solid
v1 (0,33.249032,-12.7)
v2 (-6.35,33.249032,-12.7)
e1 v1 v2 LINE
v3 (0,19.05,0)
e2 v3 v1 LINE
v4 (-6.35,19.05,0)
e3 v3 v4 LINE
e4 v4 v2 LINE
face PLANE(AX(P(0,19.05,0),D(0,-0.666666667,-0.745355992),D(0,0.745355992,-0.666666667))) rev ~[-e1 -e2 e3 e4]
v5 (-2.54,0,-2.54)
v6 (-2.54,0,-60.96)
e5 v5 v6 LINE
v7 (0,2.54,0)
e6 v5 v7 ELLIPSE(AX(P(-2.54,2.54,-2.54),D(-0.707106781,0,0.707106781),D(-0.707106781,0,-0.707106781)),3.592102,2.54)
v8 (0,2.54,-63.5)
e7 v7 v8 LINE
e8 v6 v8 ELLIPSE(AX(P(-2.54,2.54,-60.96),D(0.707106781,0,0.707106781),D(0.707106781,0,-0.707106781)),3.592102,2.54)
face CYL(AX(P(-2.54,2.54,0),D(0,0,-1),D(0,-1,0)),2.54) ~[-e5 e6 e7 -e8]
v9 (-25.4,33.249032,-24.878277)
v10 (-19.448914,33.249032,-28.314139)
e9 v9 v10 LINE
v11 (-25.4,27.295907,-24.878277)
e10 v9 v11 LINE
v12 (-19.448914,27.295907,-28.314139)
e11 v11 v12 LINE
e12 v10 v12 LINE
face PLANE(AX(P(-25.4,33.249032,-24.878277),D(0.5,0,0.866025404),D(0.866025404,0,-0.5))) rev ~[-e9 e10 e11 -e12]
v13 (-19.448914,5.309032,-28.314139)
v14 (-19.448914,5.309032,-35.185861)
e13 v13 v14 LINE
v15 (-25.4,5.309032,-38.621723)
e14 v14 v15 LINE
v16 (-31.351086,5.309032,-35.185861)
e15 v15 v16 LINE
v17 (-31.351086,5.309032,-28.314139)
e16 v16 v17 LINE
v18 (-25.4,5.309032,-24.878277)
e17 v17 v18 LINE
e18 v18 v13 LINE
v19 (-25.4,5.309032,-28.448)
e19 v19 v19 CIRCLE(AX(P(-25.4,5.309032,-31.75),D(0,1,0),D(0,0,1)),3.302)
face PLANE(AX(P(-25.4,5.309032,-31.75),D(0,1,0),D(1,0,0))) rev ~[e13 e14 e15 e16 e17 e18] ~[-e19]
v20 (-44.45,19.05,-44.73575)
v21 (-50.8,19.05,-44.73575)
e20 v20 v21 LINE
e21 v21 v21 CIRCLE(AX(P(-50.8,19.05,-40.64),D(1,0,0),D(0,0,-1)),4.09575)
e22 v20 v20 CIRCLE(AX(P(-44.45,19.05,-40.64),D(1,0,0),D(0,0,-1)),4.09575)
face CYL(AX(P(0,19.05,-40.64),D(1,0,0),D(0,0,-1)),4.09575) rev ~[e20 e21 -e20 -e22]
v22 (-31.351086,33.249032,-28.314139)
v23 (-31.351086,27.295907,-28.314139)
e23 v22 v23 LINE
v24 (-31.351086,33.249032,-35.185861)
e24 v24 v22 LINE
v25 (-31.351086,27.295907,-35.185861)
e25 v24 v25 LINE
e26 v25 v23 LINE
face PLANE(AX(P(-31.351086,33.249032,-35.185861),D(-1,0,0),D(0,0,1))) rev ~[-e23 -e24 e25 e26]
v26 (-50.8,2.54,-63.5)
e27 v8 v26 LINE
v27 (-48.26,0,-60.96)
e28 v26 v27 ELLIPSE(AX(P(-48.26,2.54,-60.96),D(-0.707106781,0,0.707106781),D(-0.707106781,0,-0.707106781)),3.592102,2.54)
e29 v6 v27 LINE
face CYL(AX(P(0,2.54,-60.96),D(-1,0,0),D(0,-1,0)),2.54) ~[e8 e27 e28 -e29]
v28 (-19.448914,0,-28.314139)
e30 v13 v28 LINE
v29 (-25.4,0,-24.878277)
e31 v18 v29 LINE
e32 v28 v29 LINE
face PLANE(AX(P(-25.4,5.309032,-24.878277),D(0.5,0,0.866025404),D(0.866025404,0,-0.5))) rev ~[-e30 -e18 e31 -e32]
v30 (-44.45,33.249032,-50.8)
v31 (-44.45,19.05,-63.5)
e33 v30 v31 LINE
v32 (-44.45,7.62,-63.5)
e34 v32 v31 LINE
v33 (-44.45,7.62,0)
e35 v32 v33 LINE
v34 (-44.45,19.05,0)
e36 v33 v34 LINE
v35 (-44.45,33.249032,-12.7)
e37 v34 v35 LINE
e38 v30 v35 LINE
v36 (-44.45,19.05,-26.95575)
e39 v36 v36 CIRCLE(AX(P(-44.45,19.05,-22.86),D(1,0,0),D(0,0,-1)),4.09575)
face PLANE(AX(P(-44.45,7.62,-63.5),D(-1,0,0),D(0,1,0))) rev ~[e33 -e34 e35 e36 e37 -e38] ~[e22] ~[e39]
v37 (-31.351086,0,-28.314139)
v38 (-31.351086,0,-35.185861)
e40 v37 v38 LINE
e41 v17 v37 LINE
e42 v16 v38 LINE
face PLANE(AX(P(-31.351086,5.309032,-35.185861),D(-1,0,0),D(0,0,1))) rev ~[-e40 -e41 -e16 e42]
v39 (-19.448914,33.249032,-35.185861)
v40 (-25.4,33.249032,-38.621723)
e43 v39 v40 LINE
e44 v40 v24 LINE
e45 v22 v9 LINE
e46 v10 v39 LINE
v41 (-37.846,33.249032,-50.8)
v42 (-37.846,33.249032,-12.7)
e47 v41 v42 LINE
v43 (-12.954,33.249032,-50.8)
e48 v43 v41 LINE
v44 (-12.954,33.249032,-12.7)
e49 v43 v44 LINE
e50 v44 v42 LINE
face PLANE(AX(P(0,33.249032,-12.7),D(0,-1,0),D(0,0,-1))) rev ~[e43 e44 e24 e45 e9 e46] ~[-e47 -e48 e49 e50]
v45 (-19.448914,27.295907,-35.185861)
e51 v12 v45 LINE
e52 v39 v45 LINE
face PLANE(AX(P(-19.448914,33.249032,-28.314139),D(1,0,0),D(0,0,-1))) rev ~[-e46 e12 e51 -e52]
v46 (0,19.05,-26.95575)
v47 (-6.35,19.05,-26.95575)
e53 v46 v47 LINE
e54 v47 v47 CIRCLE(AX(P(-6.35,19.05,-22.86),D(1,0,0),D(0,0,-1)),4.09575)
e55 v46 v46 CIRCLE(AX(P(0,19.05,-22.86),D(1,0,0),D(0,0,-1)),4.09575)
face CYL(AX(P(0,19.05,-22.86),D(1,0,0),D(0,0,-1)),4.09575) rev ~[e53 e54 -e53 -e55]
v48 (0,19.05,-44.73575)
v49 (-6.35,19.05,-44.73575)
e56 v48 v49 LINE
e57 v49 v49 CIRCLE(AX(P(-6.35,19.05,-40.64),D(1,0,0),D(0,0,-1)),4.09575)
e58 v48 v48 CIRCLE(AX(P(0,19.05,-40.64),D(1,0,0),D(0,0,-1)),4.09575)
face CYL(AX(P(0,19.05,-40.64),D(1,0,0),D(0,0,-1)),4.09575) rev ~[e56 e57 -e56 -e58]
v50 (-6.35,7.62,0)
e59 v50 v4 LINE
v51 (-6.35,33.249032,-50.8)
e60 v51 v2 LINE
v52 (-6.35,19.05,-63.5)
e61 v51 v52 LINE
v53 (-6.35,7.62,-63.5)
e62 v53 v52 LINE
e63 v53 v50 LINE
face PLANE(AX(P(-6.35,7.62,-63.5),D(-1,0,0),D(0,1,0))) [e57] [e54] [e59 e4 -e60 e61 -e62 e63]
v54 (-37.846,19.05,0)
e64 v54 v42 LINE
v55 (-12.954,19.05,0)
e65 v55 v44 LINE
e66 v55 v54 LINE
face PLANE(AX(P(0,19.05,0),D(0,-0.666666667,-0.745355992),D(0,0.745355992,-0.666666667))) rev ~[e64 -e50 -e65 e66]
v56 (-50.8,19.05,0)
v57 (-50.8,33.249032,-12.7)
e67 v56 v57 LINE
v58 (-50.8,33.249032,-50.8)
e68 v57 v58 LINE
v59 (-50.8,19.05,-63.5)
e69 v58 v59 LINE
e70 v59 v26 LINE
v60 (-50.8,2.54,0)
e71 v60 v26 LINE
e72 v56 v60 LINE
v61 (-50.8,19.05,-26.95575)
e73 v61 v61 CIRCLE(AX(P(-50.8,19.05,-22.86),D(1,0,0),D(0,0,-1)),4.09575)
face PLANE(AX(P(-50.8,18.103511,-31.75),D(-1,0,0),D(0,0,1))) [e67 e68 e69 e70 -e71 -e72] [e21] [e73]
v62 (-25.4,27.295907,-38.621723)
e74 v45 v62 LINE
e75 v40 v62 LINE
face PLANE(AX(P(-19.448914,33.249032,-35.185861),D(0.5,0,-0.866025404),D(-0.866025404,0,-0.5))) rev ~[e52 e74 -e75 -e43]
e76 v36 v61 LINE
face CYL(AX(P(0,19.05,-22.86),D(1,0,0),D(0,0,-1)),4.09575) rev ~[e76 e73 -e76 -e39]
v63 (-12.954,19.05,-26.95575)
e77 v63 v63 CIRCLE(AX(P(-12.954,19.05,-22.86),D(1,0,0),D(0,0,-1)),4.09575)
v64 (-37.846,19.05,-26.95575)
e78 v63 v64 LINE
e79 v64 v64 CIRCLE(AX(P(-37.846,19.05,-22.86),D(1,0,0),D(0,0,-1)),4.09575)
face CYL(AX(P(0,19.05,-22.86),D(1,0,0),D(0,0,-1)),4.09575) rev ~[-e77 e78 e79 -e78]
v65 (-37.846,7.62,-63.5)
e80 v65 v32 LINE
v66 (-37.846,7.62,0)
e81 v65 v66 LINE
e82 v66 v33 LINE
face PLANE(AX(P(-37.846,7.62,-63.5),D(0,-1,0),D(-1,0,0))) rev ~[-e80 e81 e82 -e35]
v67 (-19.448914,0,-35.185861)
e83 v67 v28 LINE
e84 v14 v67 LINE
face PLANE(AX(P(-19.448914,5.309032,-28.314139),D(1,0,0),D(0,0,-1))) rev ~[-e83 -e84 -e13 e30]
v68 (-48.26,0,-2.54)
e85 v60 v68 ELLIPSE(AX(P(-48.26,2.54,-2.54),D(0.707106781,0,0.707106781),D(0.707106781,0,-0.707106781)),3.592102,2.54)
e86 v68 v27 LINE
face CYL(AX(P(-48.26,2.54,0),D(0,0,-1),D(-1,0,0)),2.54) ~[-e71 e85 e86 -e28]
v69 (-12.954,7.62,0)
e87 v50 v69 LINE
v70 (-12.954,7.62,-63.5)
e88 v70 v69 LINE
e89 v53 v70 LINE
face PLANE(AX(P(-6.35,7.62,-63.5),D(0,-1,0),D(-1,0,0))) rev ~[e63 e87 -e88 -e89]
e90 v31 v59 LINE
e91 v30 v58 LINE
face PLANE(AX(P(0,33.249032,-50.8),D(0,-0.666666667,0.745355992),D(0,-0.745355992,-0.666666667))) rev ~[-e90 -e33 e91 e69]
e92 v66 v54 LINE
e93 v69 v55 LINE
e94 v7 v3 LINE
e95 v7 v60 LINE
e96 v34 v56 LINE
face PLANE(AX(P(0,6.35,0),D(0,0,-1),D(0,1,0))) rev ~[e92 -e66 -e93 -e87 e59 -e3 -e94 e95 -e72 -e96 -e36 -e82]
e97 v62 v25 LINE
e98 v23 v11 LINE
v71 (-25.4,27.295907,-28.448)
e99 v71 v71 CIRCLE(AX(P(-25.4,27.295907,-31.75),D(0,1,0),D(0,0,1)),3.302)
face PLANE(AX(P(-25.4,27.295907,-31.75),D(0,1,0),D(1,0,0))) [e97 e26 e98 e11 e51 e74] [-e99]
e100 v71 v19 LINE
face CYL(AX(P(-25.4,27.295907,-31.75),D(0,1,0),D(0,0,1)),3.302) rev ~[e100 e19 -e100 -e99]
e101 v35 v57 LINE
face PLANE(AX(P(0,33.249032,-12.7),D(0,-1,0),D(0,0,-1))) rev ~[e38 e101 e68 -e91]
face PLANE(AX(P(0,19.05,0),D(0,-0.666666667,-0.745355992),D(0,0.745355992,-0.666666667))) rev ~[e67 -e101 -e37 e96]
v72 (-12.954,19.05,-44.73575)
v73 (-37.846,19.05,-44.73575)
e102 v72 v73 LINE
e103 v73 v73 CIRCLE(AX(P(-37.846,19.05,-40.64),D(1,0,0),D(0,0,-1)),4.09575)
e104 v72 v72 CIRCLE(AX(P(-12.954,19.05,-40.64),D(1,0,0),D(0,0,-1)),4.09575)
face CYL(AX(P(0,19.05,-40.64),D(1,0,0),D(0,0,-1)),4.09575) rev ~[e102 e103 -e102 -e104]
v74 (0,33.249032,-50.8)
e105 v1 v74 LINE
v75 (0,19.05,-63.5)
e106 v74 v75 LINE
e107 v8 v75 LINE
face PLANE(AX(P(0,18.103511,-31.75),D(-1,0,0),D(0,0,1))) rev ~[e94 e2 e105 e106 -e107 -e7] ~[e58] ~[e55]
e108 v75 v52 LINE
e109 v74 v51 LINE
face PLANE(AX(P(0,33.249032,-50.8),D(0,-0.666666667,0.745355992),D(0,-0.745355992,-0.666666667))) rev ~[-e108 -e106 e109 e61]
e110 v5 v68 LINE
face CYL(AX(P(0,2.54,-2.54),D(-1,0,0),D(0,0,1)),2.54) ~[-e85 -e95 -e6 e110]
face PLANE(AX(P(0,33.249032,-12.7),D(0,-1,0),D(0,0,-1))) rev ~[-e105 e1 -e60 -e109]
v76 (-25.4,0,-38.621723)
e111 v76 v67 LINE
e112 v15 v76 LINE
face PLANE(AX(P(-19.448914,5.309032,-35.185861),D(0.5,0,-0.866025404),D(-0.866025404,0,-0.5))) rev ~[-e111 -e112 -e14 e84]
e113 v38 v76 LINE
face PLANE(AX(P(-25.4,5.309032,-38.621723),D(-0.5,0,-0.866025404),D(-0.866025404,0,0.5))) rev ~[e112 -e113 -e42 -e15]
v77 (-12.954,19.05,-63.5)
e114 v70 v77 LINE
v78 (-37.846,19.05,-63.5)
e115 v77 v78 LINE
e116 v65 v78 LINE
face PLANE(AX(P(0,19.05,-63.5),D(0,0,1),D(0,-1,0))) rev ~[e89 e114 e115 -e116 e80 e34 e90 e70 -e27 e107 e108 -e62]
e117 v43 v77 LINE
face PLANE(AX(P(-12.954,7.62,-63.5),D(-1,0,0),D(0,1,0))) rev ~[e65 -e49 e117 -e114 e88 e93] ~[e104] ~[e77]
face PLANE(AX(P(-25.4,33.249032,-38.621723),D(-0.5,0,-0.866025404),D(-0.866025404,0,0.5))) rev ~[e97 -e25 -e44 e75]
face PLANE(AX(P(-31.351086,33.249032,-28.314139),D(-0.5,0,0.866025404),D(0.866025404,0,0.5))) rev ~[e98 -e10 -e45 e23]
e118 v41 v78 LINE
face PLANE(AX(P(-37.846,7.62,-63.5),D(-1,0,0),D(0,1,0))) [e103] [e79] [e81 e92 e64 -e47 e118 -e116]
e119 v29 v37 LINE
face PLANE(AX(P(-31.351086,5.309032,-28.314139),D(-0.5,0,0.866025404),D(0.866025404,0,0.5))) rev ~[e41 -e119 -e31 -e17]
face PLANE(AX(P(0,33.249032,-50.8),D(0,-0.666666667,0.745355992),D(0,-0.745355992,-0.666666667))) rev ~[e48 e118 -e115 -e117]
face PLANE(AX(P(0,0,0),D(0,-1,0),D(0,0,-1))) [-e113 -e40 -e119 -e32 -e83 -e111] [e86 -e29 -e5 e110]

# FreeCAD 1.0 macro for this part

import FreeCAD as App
import Part
import Sketcher

V = App.Vector
Q = App.Units.Quantity


def edges_at(feature, points):
    """Names of the edges that pass closest to the given points."""
    edges = feature.Shape.Edges
    near = lambda p: min(range(len(edges)), key=lambda i: edges[i].distToShape(Part.Vertex(*p))[0])
    return sorted({f"Edge{near(p) + 1}" for p in points})


def add_polygon(sketch, points):
    """Adds a closed chain of lines whose ends are joined by coincident constraints."""
    first, n = sketch.GeometryCount, len(points)
    for a, b in zip(points, points[1:] + points[:1]):
        sketch.addGeometry(Part.LineSegment(App.Vector(*a, 0), App.Vector(*b, 0)), False)
    for i in range(n):
        sketch.addConstraint(Sketcher.Constraint("Coincident", first + i, 2, first + (i + 1) % n, 1))

doc = App.newDocument("Part")
body = doc.addObject("PartDesign::Body", "Body")

# Sketch on YZ plane
sketch1 = body.newObject("Sketcher::SketchObject", "Sketch")
sketch1.AttachmentSupport = (doc.getObject("YZ_Plane"), [""])
sketch1.MapMode = "FlatFace"
add_polygon(sketch1, [(6.35, 0), (0, 0), (0, -63.5), (6.35, -63.5)])  # lines 0-3
sketch1.addConstraint([
    Sketcher.Constraint("Horizontal", 0),
    Sketcher.Constraint("Vertical", 1),
    Sketcher.Constraint("Horizontal", 2),
    Sketcher.Constraint("Vertical", 3),
    Sketcher.Constraint("Coincident", 0, 2, -1, 1),
    Sketcher.Constraint("DistanceY", 1, 2, 1, 1, Q("2.5 in")),
    Sketcher.Constraint("DistanceX", 0, 2, 0, 1, Q("0.25 in")),
])
pad1 = body.newObject("PartDesign::Pad", "Pad")
pad1.Profile = sketch1
pad1.Length = Q("2 in")
pad1.Reversed = True

# Sketch on YZ plane
sketch2 = body.newObject("Sketcher::SketchObject", "Sketch001")
sketch2.AttachmentSupport = (doc.getObject("YZ_Plane"), [""])
sketch2.MapMode = "FlatFace"
add_polygon(sketch2, [(19.05, 0), (6.35, 0), (6.35, -63.5), (19.05, -63.5), (33.249032, -50.8), (33.249032, -12.7)])  # lines 0-5
sketch2.addConstraint([
    Sketcher.Constraint("Horizontal", 0),
    Sketcher.Constraint("Vertical", 1),
    Sketcher.Constraint("Horizontal", 2),
    Sketcher.Constraint("Vertical", 4),
    Sketcher.Constraint("PointOnObject", 0, 2, -1),
    Sketcher.Constraint("Vertical", 2, 2, 5, 2),
    Sketcher.Constraint("Equal", 3, 5),
    Sketcher.Constraint("DistanceX", 0, 2, 0, 1, Q("0.5 in")),
    Sketcher.Constraint("DistanceY", 1, 2, 1, 1, Q("2.5 in")),
    Sketcher.Constraint("DistanceY", 4, 1, 4, 2, Q("1.5 in")),
    Sketcher.Constraint("Distance", 3, Q("0.75 in")),
    Sketcher.Constraint("DistanceX", -1, 1, 0, 2, Q("0.25 in")),
])
pad2 = body.newObject("PartDesign::Pad", "Pad001")
pad2.Profile = sketch2
pad2.Length = Q("2 in")
pad2.Reversed = True

# Sketch on XY plane
sketch3 = body.newObject("Sketcher::SketchObject", "Sketch002")
sketch3.AttachmentSupport = (doc.getObject("XY_Plane"), [""])
sketch3.MapMode = "FlatFace"
sketch3.AttachmentOffset = App.Placement(V(0, 0, -2.5 * 25.4), App.Rotation())
add_polygon(sketch3, [(-6.35, 33.249032), (-6.35, 7.62), (-12.954, 7.62), (-12.954, 33.249032)])  # lines 0-3
sketch3.addConstraint([
    Sketcher.Constraint("Vertical", 0),
    Sketcher.Constraint("Horizontal", 1),
    Sketcher.Constraint("Vertical", 2),
    Sketcher.Constraint("Horizontal", 3),
    Sketcher.Constraint("DistanceX", 1, 2, 1, 1, Q("0.26 in")),
    Sketcher.Constraint("DistanceY", -1, 1, 0, 2, Q("0.3 in")),
    Sketcher.Constraint("DistanceX", 0, 2, -1, 1, Q("0.25 in")),
    Sketcher.Constraint("DistanceY", 0, 2, 0, 1, 25.629032),
])
pocket1 = body.newObject("PartDesign::Pocket", "Pocket")
pocket1.Profile = sketch3
pocket1.Type = "ThroughAll"
pocket1.Reversed = True
doc.recompute()

linearpattern = body.newObject("PartDesign::LinearPattern", "LinearPattern")
linearpattern.Originals = [pocket1]
linearpattern.Direction = (doc.getObject("X_Axis"), [""])
linearpattern.Mode = "offset"
linearpattern.Offset = Q("1.24 in")
linearpattern.Occurrences = 2
linearpattern.Reversed = True
body.Tip = linearpattern

# Sketch on YZ plane
sketch4 = body.newObject("Sketcher::SketchObject", "Sketch003")
sketch4.AttachmentSupport = (doc.getObject("YZ_Plane"), [""])
sketch4.MapMode = "FlatFace"
sketch4.addGeometry([
    Part.Circle(V(19.05, -22.86, 0), V(0, 0, 1), 4.09575),
    Part.Circle(V(19.05, -40.64, 0), V(0, 0, 1), 4.09575),
], False)
sketch4.addConstraint([
    Sketcher.Constraint("Equal", 0, 1),
    Sketcher.Constraint("Vertical", 0, 3, 1, 3),
    Sketcher.Constraint("Diameter", 0, Q("0.3225 in")),
    Sketcher.Constraint("DistanceY", 0, 3, -1, 1, Q("0.9 in")),
    Sketcher.Constraint("DistanceY", 1, 3, -1, 1, Q("1.6 in")),
    Sketcher.Constraint("DistanceX", -1, 1, 0, 3, Q("0.75 in")),
])
pocket2 = body.newObject("PartDesign::Pocket", "Pocket001")
pocket2.Profile = sketch4
pocket2.Type = "ThroughAll"

# Sketch on XZ plane
sketch5 = body.newObject("Sketcher::SketchObject", "Sketch004")
sketch5.AttachmentSupport = (doc.getObject("XZ_Plane"), [""])
sketch5.MapMode = "FlatFace"
sketch5.AttachmentOffset = App.Placement(V(0, 0, -33.249032), App.Rotation())
add_polygon(sketch5, [(-19.448914, -35.185861), (-25.4, -38.621723), (-31.351086, -35.185861), (-31.351086, -28.314139), (-25.4, -24.878277), (-19.448914, -28.314139)])  # lines 0-5
sketch5.addConstraint([
    Sketcher.Constraint("Vertical", 2),
    Sketcher.Constraint("Vertical", 5),
    Sketcher.Constraint("Parallel", 0, 3),
    Sketcher.Constraint("Parallel", 1, 4),
    Sketcher.Constraint("Horizontal", 2, 2, 4, 2),
    Sketcher.Constraint("Horizontal", 1, 2, 5, 2),
    Sketcher.Constraint("Vertical", 0, 2, 3, 2),
    Sketcher.Constraint("DistanceX", 0, 2, -1, 1, Q("1 in")),
    Sketcher.Constraint("Angle", 0, Q("-150 deg")),
    Sketcher.Constraint("DistanceY", 2, 1, 2, 2, 6.871723),
    Sketcher.Constraint("DistanceY", 1, 2, -1, 1, 35.185861),
    Sketcher.Constraint("DistanceY", 0, 2, 1, 2, 3.435861),
])
pocket3 = body.newObject("PartDesign::Pocket", "Pocket002")
pocket3.Profile = sketch5
pocket3.Length = Q("0.234375 in")
pocket3.Reversed = True
doc.recompute()

linearpattern2 = body.newObject("PartDesign::LinearPattern", "LinearPattern001")
linearpattern2.Originals = [pocket3]
linearpattern2.Direction = (doc.getObject("Y_Axis"), [""])
linearpattern2.Mode = "offset"
linearpattern2.Offset = Q("1.1 in")
linearpattern2.Occurrences = 2
linearpattern2.Reversed = True
body.Tip = linearpattern2

# Sketch on XZ plane
sketch6 = body.newObject("Sketcher::SketchObject", "Sketch005")
sketch6.AttachmentSupport = (doc.getObject("XZ_Plane"), [""])
sketch6.MapMode = "FlatFace"
sketch6.AttachmentOffset = App.Placement(V(0, 0, -27.295907), App.Rotation())
sketch6.addGeometry(Part.Circle(V(-25.4, -31.75, 0), V(0, 0, 1), 3.302), False)
sketch6.addConstraint([
    Sketcher.Constraint("Diameter", 0, Q("0.26 in")),
    Sketcher.Constraint("DistanceX", 0, 3, -1, 1, Q("1 in")),
    Sketcher.Constraint("DistanceY", 0, 3, -1, 1, Q("1.25 in")),
])
pocket4 = body.newObject("PartDesign::Pocket", "Pocket003")
pocket4.Profile = sketch6
pocket4.Length = 21.986875
pocket4.Reversed = True
doc.recompute()

fillet = body.newObject("PartDesign::Fillet", "Fillet")
fillet.Base = (pocket4, edges_at(pocket4, [
    (0, 0, -31.75),
    (-50.8, 0, -31.75),
    (-25.4, 0, -63.5),
    (-25.4, 0, 0),
]))
fillet.Radius = Q("0.1 in")

doc.recompute()
